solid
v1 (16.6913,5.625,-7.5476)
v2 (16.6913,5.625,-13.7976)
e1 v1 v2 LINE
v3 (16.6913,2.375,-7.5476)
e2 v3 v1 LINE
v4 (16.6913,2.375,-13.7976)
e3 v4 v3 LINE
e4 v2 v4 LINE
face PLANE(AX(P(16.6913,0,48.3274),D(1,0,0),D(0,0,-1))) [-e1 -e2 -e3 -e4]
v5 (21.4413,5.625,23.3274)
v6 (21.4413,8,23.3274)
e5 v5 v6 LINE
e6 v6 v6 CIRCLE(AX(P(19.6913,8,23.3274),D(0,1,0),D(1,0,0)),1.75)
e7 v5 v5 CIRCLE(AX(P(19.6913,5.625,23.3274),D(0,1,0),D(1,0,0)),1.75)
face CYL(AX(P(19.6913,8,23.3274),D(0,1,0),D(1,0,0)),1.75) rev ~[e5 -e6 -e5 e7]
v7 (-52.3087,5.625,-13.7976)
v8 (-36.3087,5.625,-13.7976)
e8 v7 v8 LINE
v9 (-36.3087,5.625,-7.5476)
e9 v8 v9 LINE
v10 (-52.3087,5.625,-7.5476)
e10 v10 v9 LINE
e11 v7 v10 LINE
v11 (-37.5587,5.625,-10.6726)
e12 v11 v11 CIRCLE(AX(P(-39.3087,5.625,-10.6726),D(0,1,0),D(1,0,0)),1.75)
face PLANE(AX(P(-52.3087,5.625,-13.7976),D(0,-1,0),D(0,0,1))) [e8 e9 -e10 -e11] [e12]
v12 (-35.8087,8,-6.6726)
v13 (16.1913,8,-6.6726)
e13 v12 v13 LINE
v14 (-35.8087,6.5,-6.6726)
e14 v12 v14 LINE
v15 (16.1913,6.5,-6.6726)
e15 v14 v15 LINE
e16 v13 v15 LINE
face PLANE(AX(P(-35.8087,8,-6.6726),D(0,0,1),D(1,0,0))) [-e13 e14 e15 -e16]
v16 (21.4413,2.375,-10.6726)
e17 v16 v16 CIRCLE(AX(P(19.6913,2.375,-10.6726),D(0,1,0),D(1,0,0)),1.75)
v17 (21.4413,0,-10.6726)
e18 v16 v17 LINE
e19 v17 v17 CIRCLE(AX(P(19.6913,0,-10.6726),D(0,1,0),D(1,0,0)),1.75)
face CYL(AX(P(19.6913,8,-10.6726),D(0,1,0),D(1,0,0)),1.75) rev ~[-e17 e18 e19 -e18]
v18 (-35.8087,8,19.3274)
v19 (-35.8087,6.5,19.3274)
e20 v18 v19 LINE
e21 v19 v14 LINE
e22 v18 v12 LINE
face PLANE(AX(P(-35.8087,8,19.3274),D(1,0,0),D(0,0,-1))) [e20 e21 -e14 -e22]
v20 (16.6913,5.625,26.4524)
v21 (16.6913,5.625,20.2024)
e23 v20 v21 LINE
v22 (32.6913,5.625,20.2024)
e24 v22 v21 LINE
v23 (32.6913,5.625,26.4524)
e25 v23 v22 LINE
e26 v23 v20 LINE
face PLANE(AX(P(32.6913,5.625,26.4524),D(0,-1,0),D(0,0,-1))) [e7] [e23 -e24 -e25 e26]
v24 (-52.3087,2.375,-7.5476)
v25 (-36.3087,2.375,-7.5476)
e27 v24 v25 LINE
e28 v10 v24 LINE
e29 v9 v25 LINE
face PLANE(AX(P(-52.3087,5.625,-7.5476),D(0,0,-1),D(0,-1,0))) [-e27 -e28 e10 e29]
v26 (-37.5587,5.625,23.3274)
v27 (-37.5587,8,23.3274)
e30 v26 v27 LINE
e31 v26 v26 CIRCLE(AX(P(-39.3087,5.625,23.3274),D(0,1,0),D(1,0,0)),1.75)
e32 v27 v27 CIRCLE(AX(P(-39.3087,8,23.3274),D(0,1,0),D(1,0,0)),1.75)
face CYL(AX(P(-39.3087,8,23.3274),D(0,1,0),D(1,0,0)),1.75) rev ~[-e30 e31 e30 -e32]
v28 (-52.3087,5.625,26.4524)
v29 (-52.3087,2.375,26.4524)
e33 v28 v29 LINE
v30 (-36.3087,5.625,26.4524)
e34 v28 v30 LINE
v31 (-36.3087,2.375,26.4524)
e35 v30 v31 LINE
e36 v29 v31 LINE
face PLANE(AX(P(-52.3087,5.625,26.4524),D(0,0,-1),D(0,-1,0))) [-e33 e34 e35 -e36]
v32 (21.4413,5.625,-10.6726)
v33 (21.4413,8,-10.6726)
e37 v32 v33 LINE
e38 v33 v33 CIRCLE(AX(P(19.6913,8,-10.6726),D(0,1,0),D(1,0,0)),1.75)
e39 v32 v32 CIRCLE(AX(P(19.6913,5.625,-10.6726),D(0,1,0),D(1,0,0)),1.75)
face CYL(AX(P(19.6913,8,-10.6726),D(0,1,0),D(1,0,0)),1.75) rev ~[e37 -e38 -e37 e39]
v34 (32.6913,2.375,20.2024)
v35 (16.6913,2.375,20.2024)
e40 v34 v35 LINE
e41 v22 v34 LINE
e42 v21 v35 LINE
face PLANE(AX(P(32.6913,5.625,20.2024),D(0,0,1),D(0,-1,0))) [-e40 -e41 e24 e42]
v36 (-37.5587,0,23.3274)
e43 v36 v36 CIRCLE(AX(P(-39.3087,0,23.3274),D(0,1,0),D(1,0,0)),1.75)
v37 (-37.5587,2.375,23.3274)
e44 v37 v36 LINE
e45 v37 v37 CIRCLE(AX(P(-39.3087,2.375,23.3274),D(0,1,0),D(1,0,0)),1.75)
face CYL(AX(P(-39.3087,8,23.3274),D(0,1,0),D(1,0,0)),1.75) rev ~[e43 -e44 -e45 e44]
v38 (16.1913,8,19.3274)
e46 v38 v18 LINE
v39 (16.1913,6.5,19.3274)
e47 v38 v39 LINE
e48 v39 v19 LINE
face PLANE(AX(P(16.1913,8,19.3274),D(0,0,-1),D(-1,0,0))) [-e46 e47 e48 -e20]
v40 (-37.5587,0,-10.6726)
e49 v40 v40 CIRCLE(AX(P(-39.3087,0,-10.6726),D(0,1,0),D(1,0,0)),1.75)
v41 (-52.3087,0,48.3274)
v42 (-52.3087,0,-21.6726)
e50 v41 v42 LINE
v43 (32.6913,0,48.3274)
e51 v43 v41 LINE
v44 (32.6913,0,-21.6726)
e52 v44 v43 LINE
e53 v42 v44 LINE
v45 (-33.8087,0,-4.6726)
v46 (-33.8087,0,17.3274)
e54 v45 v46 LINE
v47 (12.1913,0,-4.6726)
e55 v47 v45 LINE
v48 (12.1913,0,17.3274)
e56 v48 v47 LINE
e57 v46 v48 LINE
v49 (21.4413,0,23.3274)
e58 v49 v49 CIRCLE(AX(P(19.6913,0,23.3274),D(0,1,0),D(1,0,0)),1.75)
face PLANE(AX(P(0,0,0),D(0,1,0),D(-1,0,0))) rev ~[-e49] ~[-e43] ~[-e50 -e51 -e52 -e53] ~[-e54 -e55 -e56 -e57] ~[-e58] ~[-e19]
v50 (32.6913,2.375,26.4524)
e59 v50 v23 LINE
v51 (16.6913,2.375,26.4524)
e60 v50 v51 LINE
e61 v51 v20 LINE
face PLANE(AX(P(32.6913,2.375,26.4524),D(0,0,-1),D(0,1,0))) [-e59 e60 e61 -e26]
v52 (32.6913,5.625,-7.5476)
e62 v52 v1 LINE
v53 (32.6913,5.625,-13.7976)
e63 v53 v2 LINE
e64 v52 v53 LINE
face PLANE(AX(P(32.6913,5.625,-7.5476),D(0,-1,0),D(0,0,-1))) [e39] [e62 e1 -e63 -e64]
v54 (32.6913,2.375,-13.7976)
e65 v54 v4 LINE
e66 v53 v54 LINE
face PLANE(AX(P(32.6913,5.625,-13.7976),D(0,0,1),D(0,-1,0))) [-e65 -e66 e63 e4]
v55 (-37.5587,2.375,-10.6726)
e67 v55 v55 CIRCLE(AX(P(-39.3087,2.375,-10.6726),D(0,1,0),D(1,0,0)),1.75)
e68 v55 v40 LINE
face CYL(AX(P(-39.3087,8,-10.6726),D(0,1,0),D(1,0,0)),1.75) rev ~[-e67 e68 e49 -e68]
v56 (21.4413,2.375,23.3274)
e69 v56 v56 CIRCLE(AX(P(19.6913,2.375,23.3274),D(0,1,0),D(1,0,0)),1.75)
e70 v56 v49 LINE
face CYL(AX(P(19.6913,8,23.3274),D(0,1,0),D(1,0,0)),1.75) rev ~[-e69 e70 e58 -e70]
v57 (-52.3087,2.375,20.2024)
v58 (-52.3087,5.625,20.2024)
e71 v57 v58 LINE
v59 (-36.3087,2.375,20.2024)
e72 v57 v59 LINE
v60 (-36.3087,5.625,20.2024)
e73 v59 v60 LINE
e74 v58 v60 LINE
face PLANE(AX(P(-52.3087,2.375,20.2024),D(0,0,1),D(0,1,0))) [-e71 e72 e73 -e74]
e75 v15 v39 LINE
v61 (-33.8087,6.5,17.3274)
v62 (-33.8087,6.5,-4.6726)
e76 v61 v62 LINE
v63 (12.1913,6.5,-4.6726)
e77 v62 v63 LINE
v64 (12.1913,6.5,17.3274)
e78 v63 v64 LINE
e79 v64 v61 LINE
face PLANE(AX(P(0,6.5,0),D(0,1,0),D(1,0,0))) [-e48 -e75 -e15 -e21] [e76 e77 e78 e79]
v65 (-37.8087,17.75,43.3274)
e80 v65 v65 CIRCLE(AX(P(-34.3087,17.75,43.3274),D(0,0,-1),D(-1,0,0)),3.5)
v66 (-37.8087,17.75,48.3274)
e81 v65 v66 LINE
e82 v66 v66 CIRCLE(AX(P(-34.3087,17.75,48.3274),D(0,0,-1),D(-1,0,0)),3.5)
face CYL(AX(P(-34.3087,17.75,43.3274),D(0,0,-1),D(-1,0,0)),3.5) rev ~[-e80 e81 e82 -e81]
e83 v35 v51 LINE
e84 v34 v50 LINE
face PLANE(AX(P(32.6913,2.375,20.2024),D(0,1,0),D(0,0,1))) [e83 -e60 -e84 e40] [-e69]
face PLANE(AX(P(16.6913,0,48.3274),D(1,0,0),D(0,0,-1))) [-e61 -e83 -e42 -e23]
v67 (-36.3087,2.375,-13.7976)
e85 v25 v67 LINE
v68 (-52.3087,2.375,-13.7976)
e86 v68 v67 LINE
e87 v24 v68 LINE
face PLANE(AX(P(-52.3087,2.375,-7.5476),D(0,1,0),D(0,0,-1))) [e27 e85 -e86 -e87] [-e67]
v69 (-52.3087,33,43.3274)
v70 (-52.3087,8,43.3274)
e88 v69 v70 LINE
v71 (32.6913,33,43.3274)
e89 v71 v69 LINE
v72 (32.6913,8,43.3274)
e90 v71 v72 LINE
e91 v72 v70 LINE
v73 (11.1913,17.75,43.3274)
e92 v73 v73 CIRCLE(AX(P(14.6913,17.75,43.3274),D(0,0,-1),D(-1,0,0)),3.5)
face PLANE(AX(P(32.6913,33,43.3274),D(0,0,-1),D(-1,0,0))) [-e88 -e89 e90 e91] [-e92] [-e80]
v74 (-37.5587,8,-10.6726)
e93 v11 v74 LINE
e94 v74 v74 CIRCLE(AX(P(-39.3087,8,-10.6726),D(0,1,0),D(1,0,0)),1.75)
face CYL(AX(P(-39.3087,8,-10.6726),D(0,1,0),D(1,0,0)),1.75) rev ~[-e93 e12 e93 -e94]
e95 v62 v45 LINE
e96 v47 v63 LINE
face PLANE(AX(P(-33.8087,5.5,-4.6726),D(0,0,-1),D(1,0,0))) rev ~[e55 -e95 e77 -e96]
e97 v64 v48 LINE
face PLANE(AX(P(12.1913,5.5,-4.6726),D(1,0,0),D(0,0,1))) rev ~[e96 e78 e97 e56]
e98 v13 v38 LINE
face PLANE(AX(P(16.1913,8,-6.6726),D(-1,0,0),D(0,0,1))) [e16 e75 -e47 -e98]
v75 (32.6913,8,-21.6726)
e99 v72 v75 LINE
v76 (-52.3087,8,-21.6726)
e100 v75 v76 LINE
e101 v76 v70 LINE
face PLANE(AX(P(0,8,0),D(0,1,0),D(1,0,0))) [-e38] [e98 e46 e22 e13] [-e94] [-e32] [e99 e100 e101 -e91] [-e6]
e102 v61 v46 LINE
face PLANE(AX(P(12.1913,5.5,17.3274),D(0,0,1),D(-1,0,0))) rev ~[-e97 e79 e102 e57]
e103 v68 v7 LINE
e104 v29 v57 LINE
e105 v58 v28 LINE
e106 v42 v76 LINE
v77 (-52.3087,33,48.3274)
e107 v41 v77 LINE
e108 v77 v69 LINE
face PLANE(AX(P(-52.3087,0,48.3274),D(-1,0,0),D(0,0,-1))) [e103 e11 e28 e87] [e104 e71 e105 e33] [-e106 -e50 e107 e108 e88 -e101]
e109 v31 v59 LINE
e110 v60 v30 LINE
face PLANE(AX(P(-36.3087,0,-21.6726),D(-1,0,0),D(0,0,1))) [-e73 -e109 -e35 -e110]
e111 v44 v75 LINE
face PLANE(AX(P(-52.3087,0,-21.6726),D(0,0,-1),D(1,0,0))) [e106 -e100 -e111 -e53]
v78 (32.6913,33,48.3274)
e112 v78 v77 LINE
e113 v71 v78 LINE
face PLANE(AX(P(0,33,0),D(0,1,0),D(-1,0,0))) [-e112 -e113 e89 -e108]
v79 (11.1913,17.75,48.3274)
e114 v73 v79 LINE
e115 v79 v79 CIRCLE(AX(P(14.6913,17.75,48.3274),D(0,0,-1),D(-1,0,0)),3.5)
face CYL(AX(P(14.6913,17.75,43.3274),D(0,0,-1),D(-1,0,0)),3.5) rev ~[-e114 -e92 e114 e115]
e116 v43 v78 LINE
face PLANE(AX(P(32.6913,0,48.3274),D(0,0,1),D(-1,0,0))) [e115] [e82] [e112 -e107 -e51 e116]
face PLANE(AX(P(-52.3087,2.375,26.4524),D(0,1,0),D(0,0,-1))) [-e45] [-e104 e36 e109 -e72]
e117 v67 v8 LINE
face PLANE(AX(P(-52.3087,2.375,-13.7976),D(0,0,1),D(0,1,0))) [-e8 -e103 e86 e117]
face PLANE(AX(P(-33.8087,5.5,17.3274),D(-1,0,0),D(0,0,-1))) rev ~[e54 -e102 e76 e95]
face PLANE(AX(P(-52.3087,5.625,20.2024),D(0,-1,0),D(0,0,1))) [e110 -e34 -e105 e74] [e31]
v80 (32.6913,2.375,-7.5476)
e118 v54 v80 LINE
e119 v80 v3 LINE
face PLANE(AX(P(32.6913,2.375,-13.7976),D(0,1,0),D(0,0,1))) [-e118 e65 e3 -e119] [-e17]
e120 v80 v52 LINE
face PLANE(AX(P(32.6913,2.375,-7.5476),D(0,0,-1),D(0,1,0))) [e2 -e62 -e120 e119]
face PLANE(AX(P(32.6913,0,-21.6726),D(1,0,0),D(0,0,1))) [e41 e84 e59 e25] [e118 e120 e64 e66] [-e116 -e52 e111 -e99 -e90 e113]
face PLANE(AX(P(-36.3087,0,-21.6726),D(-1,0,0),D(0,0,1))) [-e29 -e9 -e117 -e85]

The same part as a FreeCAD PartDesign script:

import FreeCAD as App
import Part
import Sketcher

V = App.Vector
Q = App.Units.Quantity


def add_polygon(sketch, points):
    """Adds a closed chain of lines whose ends are joined by coincident constraints."""
    first, n = sketch.GeometryCount, len(points)
    for a, b in zip(points, points[1:] + points[:1]):
        sketch.addGeometry(Part.LineSegment(App.Vector(*a, 0), App.Vector(*b, 0)), False)
    for i in range(n):
        sketch.addConstraint(Sketcher.Constraint("Coincident", first + i, 2, first + (i + 1) % n, 1))

doc = App.newDocument("Part")
body = doc.addObject("PartDesign::Body", "Body")

# Sketch on XZ plane
sketch1 = body.newObject("Sketcher::SketchObject", "Sketch")
sketch1.AttachmentSupport = (doc.getObject("XZ_Plane"), [""])
sketch1.MapMode = "FlatFace"
add_polygon(sketch1, [(32.6913, -21.6726), (-52.3087, -21.6726), (-52.3087, 48.3274), (32.6913, 48.3274)])  # lines 0-3
sketch1.addConstraint([
    Sketcher.Constraint("Horizontal", 0),
    Sketcher.Constraint("Vertical", 1),
    Sketcher.Constraint("Horizontal", 2),
    Sketcher.Constraint("Vertical", 3),
    Sketcher.Constraint("DistanceX", 0, 2, 0, 1, Q("85 mm")),
    Sketcher.Constraint("DistanceY", 1, 1, 1, 2, Q("70 mm")),
    Sketcher.Constraint("DistanceX", 0, 2, -1, 1, Q("52.3087 mm")),
    Sketcher.Constraint("DistanceY", 0, 2, -1, 1, Q("21.6726 mm")),
])
pad1 = body.newObject("PartDesign::Pad", "Pad")
pad1.Profile = sketch1
pad1.Length = 33
pad1.Reversed = True

# Sketch on XZ plane
sketch2 = body.newObject("Sketcher::SketchObject", "Sketch001")
sketch2.AttachmentSupport = (doc.getObject("XZ_Plane"), [""])
sketch2.MapMode = "FlatFace"
sketch2.AttachmentOffset = App.Placement(V(0, 0, -33), App.Rotation())
add_polygon(sketch2, [(32.6913, 43.3274), (32.6913, -21.6726), (-52.3087, -21.6726), (-52.3087, 43.3274)])  # lines 0-3
sketch2.addConstraint([
    Sketcher.Constraint("Vertical", 0),
    Sketcher.Constraint("Horizontal", 1),
    Sketcher.Constraint("Vertical", 2),
    Sketcher.Constraint("Horizontal", 3),
    Sketcher.Constraint("DistanceX", 1, 2, 1, 1, Q("85 mm")),
    Sketcher.Constraint("DistanceY", 0, 2, 0, 1, Q("65 mm")),
    Sketcher.Constraint("DistanceX", -1, 1, 0, 2, Q("32.6913 mm")),
    Sketcher.Constraint("DistanceY", 0, 2, -1, 1, Q("21.6726 mm")),
])
pocket1 = body.newObject("PartDesign::Pocket", "Pocket")
pocket1.Profile = sketch2
pocket1.Length = 25
pocket1.Reversed = True

# Sketch on XZ plane
sketch3 = body.newObject("Sketcher::SketchObject", "Sketch002")
sketch3.AttachmentSupport = (doc.getObject("XZ_Plane"), [""])
sketch3.MapMode = "FlatFace"
sketch3.AttachmentOffset = App.Placement(V(0, 0, -8), App.Rotation())
add_polygon(sketch3, [(16.1913, -6.6726), (-35.8087, -6.6726), (-35.8087, 19.3274), (16.1913, 19.3274)])  # lines 0-3
sketch3.addGeometry(Part.Circle(V(-39.3087, 23.3274, 0), V(0, 0, 1), 1.75), False)  # 4
sketch3.addGeometry(Part.Circle(V(-39.3087, -10.6726, 0), V(0, 0, 1), 1.75), False)  # 5
sketch3.addGeometry(Part.Circle(V(19.6913, -10.6726, 0), V(0, 0, 1), 1.75), False)  # 6
sketch3.addGeometry(Part.Circle(V(19.6913, 23.3274, 0), V(0, 0, 1), 1.75), False)  # 7
sketch3.addConstraint([
    Sketcher.Constraint("Horizontal", 0),
    Sketcher.Constraint("Vertical", 1),
    Sketcher.Constraint("Horizontal", 2),
    Sketcher.Constraint("Vertical", 3),
    Sketcher.Constraint("Equal", 4, 5),
    Sketcher.Constraint("Equal", 5, 6),
    Sketcher.Constraint("Equal", 6, 7),
    Sketcher.Constraint("Horizontal", 5, 3, 6, 3),
    Sketcher.Constraint("Horizontal", 4, 3, 7, 3),
    Sketcher.Constraint("Vertical", 4, 3, 5, 3),
    Sketcher.Constraint("Vertical", 6, 3, 7, 3),
    Sketcher.Constraint("Diameter", 4, Q("3.5 mm")),
    Sketcher.Constraint("DistanceX", 0, 2, 0, 1, Q("52 mm")),
    Sketcher.Constraint("DistanceY", 1, 1, 1, 2, Q("26 mm")),
    Sketcher.Constraint("DistanceY", 5, 3, 4, 3, Q("34 mm")),
    Sketcher.Constraint("DistanceX", 5, 3, 6, 3, Q("59 mm")),
    Sketcher.Constraint("DistanceX", 5, 3, 0, 2, Q("3.5 mm")),
    Sketcher.Constraint("DistanceY", 5, 3, 0, 2, Q("4 mm")),
    Sketcher.Constraint("DistanceX", 4, 3, -1, 1, Q("39.3087 mm")),
    Sketcher.Constraint("DistanceY", -1, 1, 4, 3, Q("23.3274 mm")),
])
pocket2 = body.newObject("PartDesign::Pocket", "Pocket001")
pocket2.Profile = sketch3
pocket2.Length = 1.5
pocket2.Reversed = True

# Sketch on XZ plane
sketch4 = body.newObject("Sketcher::SketchObject", "Sketch003")
sketch4.AttachmentSupport = (doc.getObject("XZ_Plane"), [""])
sketch4.MapMode = "FlatFace"
sketch4.AttachmentOffset = App.Placement(V(0, 0, -6.5), App.Rotation())
add_polygon(sketch4, [(12.1913, -4.6726), (-33.8087, -4.6726), (-33.8087, 17.3274), (12.1913, 17.3274)])  # lines 0-3
sketch4.addConstraint([
    Sketcher.Constraint("Horizontal", 0),
    Sketcher.Constraint("Vertical", 1),
    Sketcher.Constraint("Horizontal", 2),
    Sketcher.Constraint("Vertical", 3),
    Sketcher.Constraint("DistanceX", 0, 2, 0, 1, Q("46 mm")),
    Sketcher.Constraint("DistanceY", 1, 1, 1, 2, Q("22 mm")),
    Sketcher.Constraint("DistanceX", 0, 2, -1, 1, Q("33.8087 mm")),
    Sketcher.Constraint("DistanceY", 0, 2, -1, 1, Q("4.6726 mm")),
])
pocket3 = body.newObject("PartDesign::Pocket", "Pocket002")
pocket3.Profile = sketch4
pocket3.Length = 1
pocket3.Reversed = True

# Sketch on XY plane
sketch5 = body.newObject("Sketcher::SketchObject", "Sketch004")
sketch5.AttachmentSupport = (doc.getObject("XY_Plane"), [""])
sketch5.MapMode = "FlatFace"
sketch5.AttachmentOffset = App.Placement(V(0, 0, 43.3274), App.Rotation())
sketch5.addGeometry([
    Part.Circle(V(14.6913, 17.75, 0), V(0, 0, 1), 3.5),
    Part.Circle(V(-34.3087, 17.75, 0), V(0, 0, 1), 3.5),
], False)
sketch5.addConstraint([
    Sketcher.Constraint("Equal", 0, 1),
    Sketcher.Constraint("Horizontal", 0, 3, 1, 3),
    Sketcher.Constraint("Diameter", 0, Q("7 mm")),
    Sketcher.Constraint("DistanceX", 1, 3, 0, 3, Q("49 mm")),
    Sketcher.Constraint("DistanceY", -1, 1, 0, 3, Q("17.75 mm")),
    Sketcher.Constraint("DistanceX", -1, 1, 0, 3, Q("14.6913 mm")),
])
pocket4 = body.newObject("PartDesign::Pocket", "Pocket003")
pocket4.Profile = sketch5
pocket4.Length = 5
pocket4.Reversed = True

# Sketch on XZ plane
sketch6 = body.newObject("Sketcher::SketchObject", "Sketch005")
sketch6.AttachmentSupport = (doc.getObject("XZ_Plane"), [""])
sketch6.MapMode = "FlatFace"
sketch6.AttachmentOffset = App.Placement(V(0, 0, -5.5), App.Rotation())
add_polygon(sketch6, [(12.1913, -4.6726), (-33.8087, -4.6726), (-33.8087, 17.3274), (12.1913, 17.3274)])  # lines 0-3
sketch6.addConstraint([
    Sketcher.Constraint("Horizontal", 0),
    Sketcher.Constraint("Vertical", 1),
    Sketcher.Constraint("Horizontal", 2),
    Sketcher.Constraint("Vertical", 3),
    Sketcher.Constraint("DistanceX", 0, 2, 0, 1, Q("46 mm")),
    Sketcher.Constraint("DistanceY", 1, 1, 1, 2, Q("22 mm")),
    Sketcher.Constraint("DistanceX", 0, 2, -1, 1, Q("33.8087 mm")),
    Sketcher.Constraint("DistanceY", 0, 2, -1, 1, Q("4.6726 mm")),
])
pocket5 = body.newObject("PartDesign::Pocket", "Pocket004")
pocket5.Profile = sketch6
pocket5.Type = "ThroughAll"
pocket5.Midplane = True

# Sketch on YZ plane
sketch7 = body.newObject("Sketcher::SketchObject", "Sketch006")
sketch7.AttachmentSupport = (doc.getObject("YZ_Plane"), [""])
sketch7.MapMode = "FlatFace"
sketch7.AttachmentOffset = App.Placement(V(0, 0, 32.6913), App.Rotation())
add_polygon(sketch7, [(5.625, 20.2024), (5.625, 26.4524), (2.375, 26.4524), (2.375, 20.2024)])  # lines 0-3
add_polygon(sketch7, [(5.625, -13.7976), (5.625, -7.5476), (2.375, -7.5476), (2.375, -13.7976)])  # lines 4-7
sketch7.addConstraint([
    Sketcher.Constraint("Vertical", 0),
    Sketcher.Constraint("Horizontal", 1),
    Sketcher.Constraint("Vertical", 2),
    Sketcher.Constraint("Horizontal", 3),
    Sketcher.Constraint("Vertical", 4),
    Sketcher.Constraint("Horizontal", 5),
    Sketcher.Constraint("Vertical", 6),
    Sketcher.Constraint("Horizontal", 7),
    Sketcher.Constraint("Vertical", 3, 2, 4, 2),
    Sketcher.Constraint("Vertical", 2, 2, 5, 2),
    Sketcher.Constraint("Equal", 2, 4),
    Sketcher.Constraint("DistanceX", 1, 2, 1, 1, Q("3.25 mm")),
    Sketcher.Constraint("DistanceY", 0, 1, 0, 2, Q("6.25 mm")),
    Sketcher.Constraint("DistanceY", 4, 2, 0, 2, Q("34 mm")),
    Sketcher.Constraint("DistanceX", -1, 1, 0, 2, Q("5.625 mm")),
    Sketcher.Constraint("DistanceY", -1, 1, 0, 2, Q("26.4524 mm")),
])
pocket6 = body.newObject("PartDesign::Pocket", "Pocket005")
pocket6.Profile = sketch7
pocket6.Length = 16

# Sketch on YZ plane
sketch8 = body.newObject("Sketcher::SketchObject", "Sketch007")
sketch8.AttachmentSupport = (doc.getObject("YZ_Plane"), [""])
sketch8.MapMode = "FlatFace"
sketch8.AttachmentOffset = App.Placement(V(0, 0, -52.3087), App.Rotation())
add_polygon(sketch8, [(5.625, -7.5476), (5.625, -13.7976), (2.375, -13.7976), (2.375, -7.5476)])  # lines 0-3
add_polygon(sketch8, [(5.625, 26.4524), (5.625, 20.2024), (2.375, 20.2024), (2.375, 26.4524)])  # lines 4-7
sketch8.addConstraint([
    Sketcher.Constraint("Vertical", 0),
    Sketcher.Constraint("Horizontal", 1),
    Sketcher.Constraint("Vertical", 2),
    Sketcher.Constraint("Horizontal", 3),
    Sketcher.Constraint("Vertical", 4),
    Sketcher.Constraint("Horizontal", 5),
    Sketcher.Constraint("Vertical", 6),
    Sketcher.Constraint("Horizontal", 7),
    Sketcher.Constraint("Vertical", 3, 2, 4, 2),
    Sketcher.Constraint("Vertical", 2, 2, 5, 2),
    Sketcher.Constraint("Equal", 2, 4),
    Sketcher.Constraint("DistanceY", 0, 2, 4, 2, Q("34 mm")),
    Sketcher.Constraint("DistanceX", 1, 2, 1, 1, Q("3.25 mm")),
    Sketcher.Constraint("DistanceY", 0, 2, 0, 1, Q("6.25 mm")),
    Sketcher.Constraint("DistanceX", -1, 1, 0, 2, Q("5.625 mm")),
    Sketcher.Constraint("DistanceY", 0, 2, -1, 1, Q("13.7976 mm")),
])
pocket7 = body.newObject("PartDesign::Pocket", "Pocket006")
pocket7.Profile = sketch8
pocket7.Length = 16
pocket7.Reversed = True

# Sketch on XZ plane
sketch9 = body.newObject("Sketcher::SketchObject", "Sketch008")
sketch9.AttachmentSupport = (doc.getObject("XZ_Plane"), [""])
sketch9.MapMode = "FlatFace"
sketch9.AttachmentOffset = App.Placement(V(0, 0, -8), App.Rotation())
sketch9.addGeometry([
    Part.Circle(V(-39.3087, 23.3274, 0), V(0, 0, 1), 1.75),
    Part.Circle(V(19.6913, -10.6726, 0), V(0, 0, 1), 1.75),
    Part.Circle(V(-39.3087, -10.6726, 0), V(0, 0, 1), 1.75),
    Part.Circle(V(19.6913, 23.3274, 0), V(0, 0, 1), 1.75),
], False)
sketch9.addConstraint([
    Sketcher.Constraint("Equal", 0, 1),
    Sketcher.Constraint("Equal", 1, 2),
    Sketcher.Constraint("Equal", 2, 3),
    Sketcher.Constraint("Horizontal", 1, 3, 2, 3),
    Sketcher.Constraint("Horizontal", 0, 3, 3, 3),
    Sketcher.Constraint("Vertical", 0, 3, 2, 3),
    Sketcher.Constraint("Vertical", 1, 3, 3, 3),
    Sketcher.Constraint("Diameter", 0, Q("3.5 mm")),
    Sketcher.Constraint("DistanceX", 0, 3, 1, 3, Q("59 mm")),
    Sketcher.Constraint("DistanceY", 1, 3, 0, 3, Q("34 mm")),
    Sketcher.Constraint("DistanceX", 0, 3, -1, 1, Q("39.3087 mm")),
    Sketcher.Constraint("DistanceY", -1, 1, 0, 3, Q("23.3274 mm")),
])
pocket8 = body.newObject("PartDesign::Pocket", "Pocket007")
pocket8.Profile = sketch9
pocket8.Type = "ThroughAll"
pocket8.Reversed = True

doc.recompute()
